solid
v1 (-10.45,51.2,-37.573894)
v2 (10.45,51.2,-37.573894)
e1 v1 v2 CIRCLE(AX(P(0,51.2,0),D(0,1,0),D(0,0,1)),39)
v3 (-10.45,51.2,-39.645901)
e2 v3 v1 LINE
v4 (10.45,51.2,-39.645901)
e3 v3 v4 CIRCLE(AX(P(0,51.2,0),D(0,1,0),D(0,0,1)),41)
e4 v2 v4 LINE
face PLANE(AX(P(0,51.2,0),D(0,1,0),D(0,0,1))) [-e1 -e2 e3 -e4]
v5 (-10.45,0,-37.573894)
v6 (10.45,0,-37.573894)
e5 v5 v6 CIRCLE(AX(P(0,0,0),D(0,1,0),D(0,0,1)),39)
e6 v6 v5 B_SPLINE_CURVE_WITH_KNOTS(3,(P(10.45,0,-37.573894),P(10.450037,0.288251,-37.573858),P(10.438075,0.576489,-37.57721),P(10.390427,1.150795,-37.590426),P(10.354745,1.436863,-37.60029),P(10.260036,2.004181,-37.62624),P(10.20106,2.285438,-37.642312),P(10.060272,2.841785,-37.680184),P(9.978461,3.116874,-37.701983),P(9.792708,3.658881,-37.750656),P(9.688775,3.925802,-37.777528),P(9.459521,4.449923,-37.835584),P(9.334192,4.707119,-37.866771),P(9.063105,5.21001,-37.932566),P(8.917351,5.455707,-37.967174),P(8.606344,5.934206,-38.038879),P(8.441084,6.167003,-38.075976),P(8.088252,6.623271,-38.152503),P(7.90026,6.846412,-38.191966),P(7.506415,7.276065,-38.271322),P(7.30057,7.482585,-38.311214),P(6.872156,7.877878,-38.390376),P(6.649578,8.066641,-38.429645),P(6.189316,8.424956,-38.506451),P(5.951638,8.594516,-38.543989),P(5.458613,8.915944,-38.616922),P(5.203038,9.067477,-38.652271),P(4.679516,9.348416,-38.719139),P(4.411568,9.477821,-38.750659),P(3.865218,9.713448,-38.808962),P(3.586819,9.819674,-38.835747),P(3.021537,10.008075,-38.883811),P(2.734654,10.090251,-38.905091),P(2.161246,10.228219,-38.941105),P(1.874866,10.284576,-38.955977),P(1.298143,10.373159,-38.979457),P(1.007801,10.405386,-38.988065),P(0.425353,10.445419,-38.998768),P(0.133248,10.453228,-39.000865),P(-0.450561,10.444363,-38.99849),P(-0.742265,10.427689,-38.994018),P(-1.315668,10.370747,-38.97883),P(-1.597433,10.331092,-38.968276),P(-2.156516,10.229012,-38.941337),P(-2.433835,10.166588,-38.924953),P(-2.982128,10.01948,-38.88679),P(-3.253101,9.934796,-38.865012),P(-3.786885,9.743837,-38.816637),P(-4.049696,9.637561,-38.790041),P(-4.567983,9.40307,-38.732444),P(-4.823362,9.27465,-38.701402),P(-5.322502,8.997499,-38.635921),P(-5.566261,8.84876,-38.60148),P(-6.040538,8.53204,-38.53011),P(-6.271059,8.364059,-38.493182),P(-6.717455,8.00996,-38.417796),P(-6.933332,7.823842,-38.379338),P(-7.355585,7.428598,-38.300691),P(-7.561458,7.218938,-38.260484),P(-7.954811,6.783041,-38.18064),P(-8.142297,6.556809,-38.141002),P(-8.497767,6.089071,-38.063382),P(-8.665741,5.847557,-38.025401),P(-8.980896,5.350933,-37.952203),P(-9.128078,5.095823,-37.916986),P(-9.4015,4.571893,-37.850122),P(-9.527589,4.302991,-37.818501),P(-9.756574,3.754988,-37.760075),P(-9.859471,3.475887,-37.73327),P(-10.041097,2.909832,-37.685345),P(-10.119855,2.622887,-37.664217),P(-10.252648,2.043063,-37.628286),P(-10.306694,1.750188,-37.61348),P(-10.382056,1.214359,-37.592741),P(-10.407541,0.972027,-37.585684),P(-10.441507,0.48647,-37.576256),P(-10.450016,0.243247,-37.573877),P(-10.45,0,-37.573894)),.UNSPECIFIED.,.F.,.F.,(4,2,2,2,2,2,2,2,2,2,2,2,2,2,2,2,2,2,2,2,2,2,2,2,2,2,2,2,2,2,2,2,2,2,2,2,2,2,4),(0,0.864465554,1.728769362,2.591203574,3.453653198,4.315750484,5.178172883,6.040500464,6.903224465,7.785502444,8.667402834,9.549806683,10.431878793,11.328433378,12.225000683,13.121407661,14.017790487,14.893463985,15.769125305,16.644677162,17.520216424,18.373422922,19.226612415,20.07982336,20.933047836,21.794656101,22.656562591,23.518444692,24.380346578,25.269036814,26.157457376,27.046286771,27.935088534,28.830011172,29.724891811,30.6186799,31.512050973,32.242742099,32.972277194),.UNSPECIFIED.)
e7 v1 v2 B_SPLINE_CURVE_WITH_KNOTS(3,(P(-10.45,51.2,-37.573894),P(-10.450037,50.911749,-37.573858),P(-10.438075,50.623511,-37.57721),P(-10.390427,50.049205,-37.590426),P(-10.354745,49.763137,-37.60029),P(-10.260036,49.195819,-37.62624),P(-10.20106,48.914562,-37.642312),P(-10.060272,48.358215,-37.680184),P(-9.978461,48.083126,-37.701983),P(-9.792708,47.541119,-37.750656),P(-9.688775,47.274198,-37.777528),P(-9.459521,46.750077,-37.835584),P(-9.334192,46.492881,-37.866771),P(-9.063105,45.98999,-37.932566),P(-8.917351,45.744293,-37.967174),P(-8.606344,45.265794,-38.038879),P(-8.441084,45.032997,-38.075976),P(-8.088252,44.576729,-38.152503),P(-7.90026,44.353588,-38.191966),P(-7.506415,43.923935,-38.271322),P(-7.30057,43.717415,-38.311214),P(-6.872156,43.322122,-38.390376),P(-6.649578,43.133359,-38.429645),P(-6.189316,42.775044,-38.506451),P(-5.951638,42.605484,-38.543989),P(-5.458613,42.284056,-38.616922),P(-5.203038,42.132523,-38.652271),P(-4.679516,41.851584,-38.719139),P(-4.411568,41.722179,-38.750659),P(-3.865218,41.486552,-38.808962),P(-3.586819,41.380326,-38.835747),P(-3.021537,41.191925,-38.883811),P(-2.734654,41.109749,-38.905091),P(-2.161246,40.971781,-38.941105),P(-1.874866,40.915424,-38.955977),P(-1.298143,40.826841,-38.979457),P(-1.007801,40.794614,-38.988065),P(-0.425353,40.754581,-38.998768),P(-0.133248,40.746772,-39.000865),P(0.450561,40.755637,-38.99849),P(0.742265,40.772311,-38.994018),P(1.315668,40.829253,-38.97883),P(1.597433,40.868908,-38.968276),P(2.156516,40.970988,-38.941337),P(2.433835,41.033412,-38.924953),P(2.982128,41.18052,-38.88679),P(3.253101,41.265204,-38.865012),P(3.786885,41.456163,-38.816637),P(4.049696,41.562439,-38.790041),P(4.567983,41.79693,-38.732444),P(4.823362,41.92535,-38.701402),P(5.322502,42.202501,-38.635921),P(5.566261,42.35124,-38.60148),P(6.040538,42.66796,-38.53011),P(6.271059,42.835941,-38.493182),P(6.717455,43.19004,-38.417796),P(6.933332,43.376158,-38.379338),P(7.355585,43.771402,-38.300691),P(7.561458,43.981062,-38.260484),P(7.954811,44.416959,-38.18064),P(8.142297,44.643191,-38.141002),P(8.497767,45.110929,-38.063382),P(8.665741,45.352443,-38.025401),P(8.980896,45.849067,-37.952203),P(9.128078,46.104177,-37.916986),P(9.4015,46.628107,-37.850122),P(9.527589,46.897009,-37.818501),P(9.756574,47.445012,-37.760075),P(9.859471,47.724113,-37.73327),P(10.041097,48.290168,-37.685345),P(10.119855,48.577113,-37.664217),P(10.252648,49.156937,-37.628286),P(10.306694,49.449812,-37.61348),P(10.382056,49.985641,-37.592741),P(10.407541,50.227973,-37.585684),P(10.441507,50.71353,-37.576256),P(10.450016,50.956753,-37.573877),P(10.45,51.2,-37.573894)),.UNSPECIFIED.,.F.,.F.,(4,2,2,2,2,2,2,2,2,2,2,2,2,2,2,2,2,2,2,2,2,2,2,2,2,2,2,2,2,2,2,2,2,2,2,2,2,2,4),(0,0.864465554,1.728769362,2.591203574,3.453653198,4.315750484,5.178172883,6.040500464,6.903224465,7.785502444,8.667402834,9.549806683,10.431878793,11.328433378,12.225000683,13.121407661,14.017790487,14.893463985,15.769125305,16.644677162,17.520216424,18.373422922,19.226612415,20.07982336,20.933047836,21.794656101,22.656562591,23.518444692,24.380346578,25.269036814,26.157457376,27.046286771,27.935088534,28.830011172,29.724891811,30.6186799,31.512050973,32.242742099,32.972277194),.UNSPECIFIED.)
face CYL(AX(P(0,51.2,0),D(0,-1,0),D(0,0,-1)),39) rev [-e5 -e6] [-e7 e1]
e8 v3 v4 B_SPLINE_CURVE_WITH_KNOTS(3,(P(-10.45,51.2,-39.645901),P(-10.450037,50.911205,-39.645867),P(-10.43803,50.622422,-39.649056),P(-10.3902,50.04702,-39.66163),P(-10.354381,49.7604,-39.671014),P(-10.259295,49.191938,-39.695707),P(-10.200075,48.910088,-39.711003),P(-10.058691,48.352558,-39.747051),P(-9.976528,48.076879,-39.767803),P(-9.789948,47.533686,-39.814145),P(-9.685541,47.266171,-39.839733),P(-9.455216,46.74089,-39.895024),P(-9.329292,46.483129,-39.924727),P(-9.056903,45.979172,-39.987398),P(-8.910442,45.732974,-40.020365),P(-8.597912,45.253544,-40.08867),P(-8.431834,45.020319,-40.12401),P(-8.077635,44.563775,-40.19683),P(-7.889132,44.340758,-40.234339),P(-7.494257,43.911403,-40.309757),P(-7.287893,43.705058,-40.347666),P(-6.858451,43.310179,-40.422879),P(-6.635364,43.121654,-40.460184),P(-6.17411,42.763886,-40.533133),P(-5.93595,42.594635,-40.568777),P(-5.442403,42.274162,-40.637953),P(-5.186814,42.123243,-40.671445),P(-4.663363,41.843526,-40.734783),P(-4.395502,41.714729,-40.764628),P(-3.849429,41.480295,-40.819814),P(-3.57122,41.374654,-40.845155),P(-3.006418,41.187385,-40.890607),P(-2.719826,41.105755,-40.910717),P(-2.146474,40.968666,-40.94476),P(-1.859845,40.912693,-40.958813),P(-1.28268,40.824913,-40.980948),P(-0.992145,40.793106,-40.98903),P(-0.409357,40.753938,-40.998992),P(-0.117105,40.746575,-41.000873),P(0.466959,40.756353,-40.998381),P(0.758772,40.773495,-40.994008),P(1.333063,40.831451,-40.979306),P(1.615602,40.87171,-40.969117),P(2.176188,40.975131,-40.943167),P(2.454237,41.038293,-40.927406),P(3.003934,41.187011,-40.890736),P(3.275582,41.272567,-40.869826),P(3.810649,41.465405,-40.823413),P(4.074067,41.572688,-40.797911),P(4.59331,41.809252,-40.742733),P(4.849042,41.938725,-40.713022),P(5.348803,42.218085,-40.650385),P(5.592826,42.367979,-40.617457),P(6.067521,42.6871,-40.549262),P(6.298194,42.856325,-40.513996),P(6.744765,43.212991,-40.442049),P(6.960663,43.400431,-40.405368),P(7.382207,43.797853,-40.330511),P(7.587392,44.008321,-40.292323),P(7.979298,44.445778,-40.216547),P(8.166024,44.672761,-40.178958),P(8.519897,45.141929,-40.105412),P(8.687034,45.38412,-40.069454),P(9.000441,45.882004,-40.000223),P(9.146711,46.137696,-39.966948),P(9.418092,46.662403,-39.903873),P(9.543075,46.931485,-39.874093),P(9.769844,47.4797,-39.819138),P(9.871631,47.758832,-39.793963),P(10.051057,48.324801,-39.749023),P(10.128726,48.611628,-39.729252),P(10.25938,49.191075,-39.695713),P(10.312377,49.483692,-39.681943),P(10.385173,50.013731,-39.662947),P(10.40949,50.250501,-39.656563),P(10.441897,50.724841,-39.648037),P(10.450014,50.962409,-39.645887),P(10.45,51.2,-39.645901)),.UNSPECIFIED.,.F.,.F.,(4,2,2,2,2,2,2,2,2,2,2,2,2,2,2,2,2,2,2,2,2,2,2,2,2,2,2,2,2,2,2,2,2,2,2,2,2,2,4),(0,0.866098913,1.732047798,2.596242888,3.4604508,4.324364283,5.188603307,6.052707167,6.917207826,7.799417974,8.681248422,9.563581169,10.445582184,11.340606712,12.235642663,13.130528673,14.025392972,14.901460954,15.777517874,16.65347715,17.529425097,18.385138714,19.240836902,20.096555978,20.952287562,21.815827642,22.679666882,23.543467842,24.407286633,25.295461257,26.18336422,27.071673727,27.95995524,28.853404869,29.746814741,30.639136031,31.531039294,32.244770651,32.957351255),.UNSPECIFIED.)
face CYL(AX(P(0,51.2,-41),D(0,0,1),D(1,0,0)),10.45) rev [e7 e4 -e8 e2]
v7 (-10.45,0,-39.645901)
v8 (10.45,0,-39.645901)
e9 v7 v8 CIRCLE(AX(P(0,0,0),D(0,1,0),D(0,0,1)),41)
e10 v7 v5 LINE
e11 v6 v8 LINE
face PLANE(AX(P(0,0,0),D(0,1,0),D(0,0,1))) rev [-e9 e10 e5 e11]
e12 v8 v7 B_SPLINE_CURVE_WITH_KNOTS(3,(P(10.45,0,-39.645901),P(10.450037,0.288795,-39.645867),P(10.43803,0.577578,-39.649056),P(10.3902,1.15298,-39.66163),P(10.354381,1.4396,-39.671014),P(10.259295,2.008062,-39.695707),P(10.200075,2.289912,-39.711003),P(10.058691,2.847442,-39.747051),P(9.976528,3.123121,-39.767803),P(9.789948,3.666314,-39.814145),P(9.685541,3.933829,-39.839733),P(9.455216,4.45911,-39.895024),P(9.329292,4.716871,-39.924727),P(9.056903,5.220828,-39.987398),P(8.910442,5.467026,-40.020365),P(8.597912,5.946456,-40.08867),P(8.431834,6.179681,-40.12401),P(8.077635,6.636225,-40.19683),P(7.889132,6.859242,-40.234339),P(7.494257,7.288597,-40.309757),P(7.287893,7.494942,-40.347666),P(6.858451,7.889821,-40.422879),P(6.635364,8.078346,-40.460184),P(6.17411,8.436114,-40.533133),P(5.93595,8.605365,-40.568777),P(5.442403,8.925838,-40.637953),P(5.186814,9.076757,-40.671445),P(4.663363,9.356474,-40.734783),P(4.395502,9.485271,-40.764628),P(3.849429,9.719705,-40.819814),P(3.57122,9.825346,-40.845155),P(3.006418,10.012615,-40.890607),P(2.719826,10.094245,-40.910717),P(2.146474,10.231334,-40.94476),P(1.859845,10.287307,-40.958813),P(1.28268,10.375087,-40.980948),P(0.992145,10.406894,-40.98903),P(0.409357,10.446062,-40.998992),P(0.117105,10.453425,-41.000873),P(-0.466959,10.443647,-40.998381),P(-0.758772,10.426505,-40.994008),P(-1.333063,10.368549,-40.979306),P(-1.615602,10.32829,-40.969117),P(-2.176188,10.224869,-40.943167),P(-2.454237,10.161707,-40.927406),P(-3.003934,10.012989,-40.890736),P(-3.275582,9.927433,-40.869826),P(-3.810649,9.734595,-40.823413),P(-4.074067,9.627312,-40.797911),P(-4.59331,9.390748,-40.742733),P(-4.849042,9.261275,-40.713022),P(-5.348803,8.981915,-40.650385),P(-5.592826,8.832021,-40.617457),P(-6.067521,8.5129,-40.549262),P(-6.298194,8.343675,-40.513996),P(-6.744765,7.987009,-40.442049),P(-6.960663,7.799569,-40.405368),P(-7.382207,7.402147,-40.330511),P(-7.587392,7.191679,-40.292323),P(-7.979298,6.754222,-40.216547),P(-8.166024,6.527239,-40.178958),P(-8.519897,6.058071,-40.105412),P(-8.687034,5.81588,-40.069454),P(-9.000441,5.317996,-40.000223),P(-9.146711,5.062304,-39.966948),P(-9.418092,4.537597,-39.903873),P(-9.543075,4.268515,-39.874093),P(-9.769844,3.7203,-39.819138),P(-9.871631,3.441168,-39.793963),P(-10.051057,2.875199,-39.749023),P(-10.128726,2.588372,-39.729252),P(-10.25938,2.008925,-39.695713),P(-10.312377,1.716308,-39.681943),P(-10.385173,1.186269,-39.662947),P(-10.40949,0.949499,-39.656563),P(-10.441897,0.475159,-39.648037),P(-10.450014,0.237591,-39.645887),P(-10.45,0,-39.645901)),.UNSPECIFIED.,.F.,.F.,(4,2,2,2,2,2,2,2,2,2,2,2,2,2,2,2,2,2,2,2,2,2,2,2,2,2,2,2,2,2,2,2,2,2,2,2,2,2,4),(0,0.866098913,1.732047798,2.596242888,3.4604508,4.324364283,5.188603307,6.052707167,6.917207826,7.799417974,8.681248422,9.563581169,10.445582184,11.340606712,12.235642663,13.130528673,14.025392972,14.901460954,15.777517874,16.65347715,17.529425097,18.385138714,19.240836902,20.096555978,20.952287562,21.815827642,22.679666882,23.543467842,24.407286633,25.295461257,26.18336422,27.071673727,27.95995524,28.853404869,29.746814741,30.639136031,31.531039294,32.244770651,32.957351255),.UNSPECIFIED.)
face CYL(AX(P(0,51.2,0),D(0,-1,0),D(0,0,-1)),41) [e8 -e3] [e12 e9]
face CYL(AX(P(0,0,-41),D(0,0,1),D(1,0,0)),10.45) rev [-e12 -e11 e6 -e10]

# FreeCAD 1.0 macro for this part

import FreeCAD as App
import Part
import Sketcher
from FreeCAD import Vector

doc = App.newDocument("Part")
body = doc.addObject("PartDesign::Body", "Body")

sketch1 = body.newObject("Sketcher::SketchObject", "Sketch")
sketch1.AttachmentSupport = (doc.getObject("XZ_Plane"), [""])
sketch1.MapMode = "FlatFace"
sketch1.addGeometry([
    Part.Circle(Vector(0, 0, 0), Vector(0, 0, 1), 41),
    Part.Circle(Vector(0, 0, 0), Vector(0, 0, 1), 39),
], False)
sketch1.addConstraint([
    Sketcher.Constraint("Coincident", 0, 3, -1, 1),
    Sketcher.Constraint("Coincident", 1, 3, -1, 1),
    Sketcher.Constraint("Diameter", 0, 82.0),
    Sketcher.Constraint("Diameter", 1, 78.0),
])
pad1 = body.newObject("PartDesign::Pad", "Pad")
pad1.Profile = sketch1
pad1.Length = 51.2
pad1.Reversed = True

sketch2 = body.newObject("Sketcher::SketchObject", "Sketch001")
sketch2.AttachmentSupport = (doc.getObject("XY_Plane"), [""])
sketch2.MapMode = "FlatFace"
sketch2.addGeometry([
    Part.Circle(Vector(0, 51.2, 0), Vector(0, 0, 1), 10.45),
    Part.Circle(Vector(0, 0, 0), Vector(0, 0, 1), 10.45),
], False)
sketch2.addConstraint([
    Sketcher.Constraint("Coincident", 1, 3, -1, 1),
    Sketcher.Constraint("Equal", 0, 1),
    Sketcher.Constraint("PointOnObject", 0, 3, -2),
    Sketcher.Constraint("Diameter", 0, 20.9),
    Sketcher.Constraint("DistanceY", -1, 1, 0, 3, 51.2),
])
pocket1 = body.newObject("PartDesign::Pocket", "Pocket")
pocket1.Profile = sketch2
pocket1.Type = "ThroughAll"

doc.recompute()
